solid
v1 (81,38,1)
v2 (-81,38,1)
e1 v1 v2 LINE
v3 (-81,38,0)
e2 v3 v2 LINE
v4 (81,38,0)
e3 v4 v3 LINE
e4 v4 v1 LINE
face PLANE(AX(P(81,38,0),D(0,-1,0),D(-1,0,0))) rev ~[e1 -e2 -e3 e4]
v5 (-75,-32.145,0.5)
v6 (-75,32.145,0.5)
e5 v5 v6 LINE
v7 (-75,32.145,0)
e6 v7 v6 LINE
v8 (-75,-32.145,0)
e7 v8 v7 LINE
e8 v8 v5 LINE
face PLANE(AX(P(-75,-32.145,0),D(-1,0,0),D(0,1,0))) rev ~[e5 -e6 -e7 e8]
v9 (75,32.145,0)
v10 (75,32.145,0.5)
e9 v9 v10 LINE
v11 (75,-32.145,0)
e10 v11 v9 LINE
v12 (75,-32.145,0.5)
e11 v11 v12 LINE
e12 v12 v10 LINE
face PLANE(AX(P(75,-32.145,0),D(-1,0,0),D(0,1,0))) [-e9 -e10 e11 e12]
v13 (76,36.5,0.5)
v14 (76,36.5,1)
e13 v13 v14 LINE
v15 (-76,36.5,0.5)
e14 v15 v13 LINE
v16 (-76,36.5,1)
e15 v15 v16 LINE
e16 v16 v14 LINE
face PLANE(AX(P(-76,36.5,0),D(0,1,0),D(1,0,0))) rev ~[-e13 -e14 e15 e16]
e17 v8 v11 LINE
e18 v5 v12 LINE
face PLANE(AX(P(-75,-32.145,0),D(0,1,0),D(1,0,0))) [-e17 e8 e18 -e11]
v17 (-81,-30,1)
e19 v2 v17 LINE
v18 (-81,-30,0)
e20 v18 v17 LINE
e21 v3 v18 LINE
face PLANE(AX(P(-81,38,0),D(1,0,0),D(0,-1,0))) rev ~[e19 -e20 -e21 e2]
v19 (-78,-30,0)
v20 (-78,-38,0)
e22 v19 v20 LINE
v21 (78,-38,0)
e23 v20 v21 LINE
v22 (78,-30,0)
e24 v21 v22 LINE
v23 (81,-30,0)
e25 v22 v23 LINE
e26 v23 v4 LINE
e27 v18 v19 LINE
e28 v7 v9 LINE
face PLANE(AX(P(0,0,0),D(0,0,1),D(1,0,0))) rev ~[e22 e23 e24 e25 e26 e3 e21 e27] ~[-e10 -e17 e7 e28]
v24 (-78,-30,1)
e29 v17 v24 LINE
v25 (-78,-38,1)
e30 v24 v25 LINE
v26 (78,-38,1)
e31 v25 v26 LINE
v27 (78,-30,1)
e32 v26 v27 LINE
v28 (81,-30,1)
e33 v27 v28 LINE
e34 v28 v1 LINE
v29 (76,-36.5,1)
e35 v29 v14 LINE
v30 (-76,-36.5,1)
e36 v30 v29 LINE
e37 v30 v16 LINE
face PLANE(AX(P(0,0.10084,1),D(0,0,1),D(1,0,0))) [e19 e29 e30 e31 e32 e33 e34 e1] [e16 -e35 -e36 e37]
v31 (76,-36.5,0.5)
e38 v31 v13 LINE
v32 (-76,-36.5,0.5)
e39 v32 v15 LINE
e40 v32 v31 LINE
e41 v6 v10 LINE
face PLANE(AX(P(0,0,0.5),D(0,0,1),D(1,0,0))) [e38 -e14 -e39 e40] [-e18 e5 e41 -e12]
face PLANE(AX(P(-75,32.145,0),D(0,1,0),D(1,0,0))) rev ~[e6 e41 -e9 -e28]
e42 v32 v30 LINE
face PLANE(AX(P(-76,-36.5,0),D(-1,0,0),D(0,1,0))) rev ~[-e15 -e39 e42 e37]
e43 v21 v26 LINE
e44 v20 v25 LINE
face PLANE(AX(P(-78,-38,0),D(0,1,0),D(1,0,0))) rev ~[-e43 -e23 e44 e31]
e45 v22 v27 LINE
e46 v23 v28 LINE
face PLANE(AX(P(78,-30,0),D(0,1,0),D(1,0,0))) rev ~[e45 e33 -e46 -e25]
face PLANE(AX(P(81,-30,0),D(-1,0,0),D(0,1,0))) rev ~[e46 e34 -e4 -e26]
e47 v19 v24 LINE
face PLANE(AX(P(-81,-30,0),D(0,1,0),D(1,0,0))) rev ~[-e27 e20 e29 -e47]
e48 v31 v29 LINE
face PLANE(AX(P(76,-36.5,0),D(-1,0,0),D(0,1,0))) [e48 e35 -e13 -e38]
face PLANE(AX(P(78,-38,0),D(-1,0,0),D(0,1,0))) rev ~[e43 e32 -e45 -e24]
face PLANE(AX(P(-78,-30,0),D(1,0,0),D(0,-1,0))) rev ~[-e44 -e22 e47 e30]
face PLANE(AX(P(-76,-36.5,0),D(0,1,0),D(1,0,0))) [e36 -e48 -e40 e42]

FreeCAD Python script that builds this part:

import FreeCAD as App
import Part
import Sketcher
from FreeCAD import Vector


def add_polygon(sketch, points):
    """Adds a closed chain of lines whose ends are joined by coincident constraints."""
    first, n = sketch.GeometryCount, len(points)
    for a, b in zip(points, points[1:] + points[:1]):
        sketch.addGeometry(Part.LineSegment(App.Vector(*a, 0), App.Vector(*b, 0)), False)
    for i in range(n):
        sketch.addConstraint(Sketcher.Constraint("Coincident", first + i, 2, first + (i + 1) % n, 1))

doc = App.newDocument("Part")
params = doc.addObject("Spreadsheet::Sheet", "Params")
for row, (alias, value) in enumerate([
    ("sketch1_width", "156 mm"),
    ("sketch1_width2", "3 mm"),
    ("sketch1_width3", "152 mm"),
    ("sketch1_height", "8 mm"),
    ("sketch1_height2", "68 mm"),
    ("pad1_length", "1 mm"),
    ("sketch2_width", "152 mm"),
    ("sketch2_width2", "150 mm"),
    ("sketch2_height", "73 mm"),
    ("sketch2_height2", "64.29 mm"),
    ("pad2_length", "0.5 mm"),
], start=1):
    params.set(f"A{row}", alias)
    params.set(f"B{row}", "=" + value)
    params.setAlias(f"B{row}", alias)

body = doc.addObject("PartDesign::Body", "Body")

sketch1 = doc.addObject("Sketcher::SketchObject", "Sketch")
body.addObject(sketch1)
sketch1.AttachmentSupport = (doc.XY_Plane, [""])
sketch1.MapMode = "FlatFace"
add_polygon(sketch1, [(-78, -30), (-78, -38), (78, -38), (78, -30), (81, -30), (81, 38), (-81, 38), (-81, -30)])
add_polygon(sketch1, [(76, -36.5), (-76, -36.5), (-76, 36.5), (76, 36.5)])
sketch1.addConstraint([
    Sketcher.Constraint("Vertical", 0),
    Sketcher.Constraint("Horizontal", 1),
    Sketcher.Constraint("Vertical", 2),
    Sketcher.Constraint("Horizontal", 3),
    Sketcher.Constraint("Vertical", 4),
    Sketcher.Constraint("Horizontal", 5),
    Sketcher.Constraint("Vertical", 6),
    Sketcher.Constraint("Horizontal", 7),
    Sketcher.Constraint("Horizontal", 8),
    Sketcher.Constraint("Vertical", 9),
    Sketcher.Constraint("Horizontal", 10),
    Sketcher.Constraint("Vertical", 11),
    Sketcher.Constraint("Symmetric", 8, 2, 10, 2, -1, 1),
    Sketcher.Constraint("Symmetric", 3, 2, 6, 2, -2),
    Sketcher.Constraint("Equal", 3, 7),
    Sketcher.Constraint("DistanceX", 1, 1, 1, 2, 156.0),
    Sketcher.Constraint("DistanceX", 3, 1, 3, 2, 3.0),
    Sketcher.Constraint("DistanceX", 8, 2, 8, 1, 152.0),
    Sketcher.Constraint("DistanceY", 0, 2, 0, 1, 8.0),
    Sketcher.Constraint("DistanceY", 4, 1, 4, 2, 68.0),
    Sketcher.Constraint("DistanceY", 9, 1, 9, 2, 73.0),
    Sketcher.Constraint("DistanceY", 0, 2, -1, 1, 38.0),
])
sketch1.setExpression("Constraints[27]", "Params.sketch1_width")
sketch1.setExpression("Constraints[28]", "Params.sketch1_width2")
sketch1.setExpression("Constraints[29]", "Params.sketch1_width3")
sketch1.setExpression("Constraints[30]", "Params.sketch1_height")
sketch1.setExpression("Constraints[31]", "Params.sketch1_height2")
pad1 = doc.addObject("PartDesign::Pad", "Pad")
body.addObject(pad1)
pad1.Profile = sketch1
pad1.setExpression("Length", "Params.pad1_length")

sketch2 = doc.addObject("Sketcher::SketchObject", "Sketch001")
body.addObject(sketch2)
sketch2.AttachmentSupport = (doc.XY_Plane, [""])
sketch2.MapMode = "FlatFace"
add_polygon(sketch2, [(-76, 36), (-76, -36), (76, -36), (76, 36)])
add_polygon(sketch2, [(75, -32), (-75, -32), (-75, 32), (75, 32)])
sketch2.addConstraint([
    Sketcher.Constraint("Vertical", 0),
    Sketcher.Constraint("Horizontal", 1),
    Sketcher.Constraint("Vertical", 2),
    Sketcher.Constraint("Horizontal", 3),
    Sketcher.Constraint("Horizontal", 4),
    Sketcher.Constraint("Vertical", 5),
    Sketcher.Constraint("Horizontal", 6),
    Sketcher.Constraint("Vertical", 7),
    Sketcher.Constraint("Symmetric", 0, 2, 2, 2, -1, 1),
    Sketcher.Constraint("Symmetric", 4, 2, 6, 2, -1, 1),
    Sketcher.Constraint("DistanceX", 1, 1, 1, 2, 152.0),
    Sketcher.Constraint("DistanceX", 4, 2, 4, 1, 150.0),
    Sketcher.Constraint("DistanceY", 0, 2, 0, 1, 73.0),
    Sketcher.Constraint("DistanceY", 5, 1, 5, 2, 64.29),
])
sketch2.setExpression("Constraints[18]", "Params.sketch2_width")
sketch2.setExpression("Constraints[19]", "Params.sketch2_width2")
sketch2.setExpression("Constraints[20]", "Params.sketch2_height")
sketch2.setExpression("Constraints[21]", "Params.sketch2_height2")
pad2 = doc.addObject("PartDesign::Pad", "Pad001")
body.addObject(pad2)
pad2.Profile = sketch2
pad2.setExpression("Length", "Params.pad2_length")

doc.recompute()
